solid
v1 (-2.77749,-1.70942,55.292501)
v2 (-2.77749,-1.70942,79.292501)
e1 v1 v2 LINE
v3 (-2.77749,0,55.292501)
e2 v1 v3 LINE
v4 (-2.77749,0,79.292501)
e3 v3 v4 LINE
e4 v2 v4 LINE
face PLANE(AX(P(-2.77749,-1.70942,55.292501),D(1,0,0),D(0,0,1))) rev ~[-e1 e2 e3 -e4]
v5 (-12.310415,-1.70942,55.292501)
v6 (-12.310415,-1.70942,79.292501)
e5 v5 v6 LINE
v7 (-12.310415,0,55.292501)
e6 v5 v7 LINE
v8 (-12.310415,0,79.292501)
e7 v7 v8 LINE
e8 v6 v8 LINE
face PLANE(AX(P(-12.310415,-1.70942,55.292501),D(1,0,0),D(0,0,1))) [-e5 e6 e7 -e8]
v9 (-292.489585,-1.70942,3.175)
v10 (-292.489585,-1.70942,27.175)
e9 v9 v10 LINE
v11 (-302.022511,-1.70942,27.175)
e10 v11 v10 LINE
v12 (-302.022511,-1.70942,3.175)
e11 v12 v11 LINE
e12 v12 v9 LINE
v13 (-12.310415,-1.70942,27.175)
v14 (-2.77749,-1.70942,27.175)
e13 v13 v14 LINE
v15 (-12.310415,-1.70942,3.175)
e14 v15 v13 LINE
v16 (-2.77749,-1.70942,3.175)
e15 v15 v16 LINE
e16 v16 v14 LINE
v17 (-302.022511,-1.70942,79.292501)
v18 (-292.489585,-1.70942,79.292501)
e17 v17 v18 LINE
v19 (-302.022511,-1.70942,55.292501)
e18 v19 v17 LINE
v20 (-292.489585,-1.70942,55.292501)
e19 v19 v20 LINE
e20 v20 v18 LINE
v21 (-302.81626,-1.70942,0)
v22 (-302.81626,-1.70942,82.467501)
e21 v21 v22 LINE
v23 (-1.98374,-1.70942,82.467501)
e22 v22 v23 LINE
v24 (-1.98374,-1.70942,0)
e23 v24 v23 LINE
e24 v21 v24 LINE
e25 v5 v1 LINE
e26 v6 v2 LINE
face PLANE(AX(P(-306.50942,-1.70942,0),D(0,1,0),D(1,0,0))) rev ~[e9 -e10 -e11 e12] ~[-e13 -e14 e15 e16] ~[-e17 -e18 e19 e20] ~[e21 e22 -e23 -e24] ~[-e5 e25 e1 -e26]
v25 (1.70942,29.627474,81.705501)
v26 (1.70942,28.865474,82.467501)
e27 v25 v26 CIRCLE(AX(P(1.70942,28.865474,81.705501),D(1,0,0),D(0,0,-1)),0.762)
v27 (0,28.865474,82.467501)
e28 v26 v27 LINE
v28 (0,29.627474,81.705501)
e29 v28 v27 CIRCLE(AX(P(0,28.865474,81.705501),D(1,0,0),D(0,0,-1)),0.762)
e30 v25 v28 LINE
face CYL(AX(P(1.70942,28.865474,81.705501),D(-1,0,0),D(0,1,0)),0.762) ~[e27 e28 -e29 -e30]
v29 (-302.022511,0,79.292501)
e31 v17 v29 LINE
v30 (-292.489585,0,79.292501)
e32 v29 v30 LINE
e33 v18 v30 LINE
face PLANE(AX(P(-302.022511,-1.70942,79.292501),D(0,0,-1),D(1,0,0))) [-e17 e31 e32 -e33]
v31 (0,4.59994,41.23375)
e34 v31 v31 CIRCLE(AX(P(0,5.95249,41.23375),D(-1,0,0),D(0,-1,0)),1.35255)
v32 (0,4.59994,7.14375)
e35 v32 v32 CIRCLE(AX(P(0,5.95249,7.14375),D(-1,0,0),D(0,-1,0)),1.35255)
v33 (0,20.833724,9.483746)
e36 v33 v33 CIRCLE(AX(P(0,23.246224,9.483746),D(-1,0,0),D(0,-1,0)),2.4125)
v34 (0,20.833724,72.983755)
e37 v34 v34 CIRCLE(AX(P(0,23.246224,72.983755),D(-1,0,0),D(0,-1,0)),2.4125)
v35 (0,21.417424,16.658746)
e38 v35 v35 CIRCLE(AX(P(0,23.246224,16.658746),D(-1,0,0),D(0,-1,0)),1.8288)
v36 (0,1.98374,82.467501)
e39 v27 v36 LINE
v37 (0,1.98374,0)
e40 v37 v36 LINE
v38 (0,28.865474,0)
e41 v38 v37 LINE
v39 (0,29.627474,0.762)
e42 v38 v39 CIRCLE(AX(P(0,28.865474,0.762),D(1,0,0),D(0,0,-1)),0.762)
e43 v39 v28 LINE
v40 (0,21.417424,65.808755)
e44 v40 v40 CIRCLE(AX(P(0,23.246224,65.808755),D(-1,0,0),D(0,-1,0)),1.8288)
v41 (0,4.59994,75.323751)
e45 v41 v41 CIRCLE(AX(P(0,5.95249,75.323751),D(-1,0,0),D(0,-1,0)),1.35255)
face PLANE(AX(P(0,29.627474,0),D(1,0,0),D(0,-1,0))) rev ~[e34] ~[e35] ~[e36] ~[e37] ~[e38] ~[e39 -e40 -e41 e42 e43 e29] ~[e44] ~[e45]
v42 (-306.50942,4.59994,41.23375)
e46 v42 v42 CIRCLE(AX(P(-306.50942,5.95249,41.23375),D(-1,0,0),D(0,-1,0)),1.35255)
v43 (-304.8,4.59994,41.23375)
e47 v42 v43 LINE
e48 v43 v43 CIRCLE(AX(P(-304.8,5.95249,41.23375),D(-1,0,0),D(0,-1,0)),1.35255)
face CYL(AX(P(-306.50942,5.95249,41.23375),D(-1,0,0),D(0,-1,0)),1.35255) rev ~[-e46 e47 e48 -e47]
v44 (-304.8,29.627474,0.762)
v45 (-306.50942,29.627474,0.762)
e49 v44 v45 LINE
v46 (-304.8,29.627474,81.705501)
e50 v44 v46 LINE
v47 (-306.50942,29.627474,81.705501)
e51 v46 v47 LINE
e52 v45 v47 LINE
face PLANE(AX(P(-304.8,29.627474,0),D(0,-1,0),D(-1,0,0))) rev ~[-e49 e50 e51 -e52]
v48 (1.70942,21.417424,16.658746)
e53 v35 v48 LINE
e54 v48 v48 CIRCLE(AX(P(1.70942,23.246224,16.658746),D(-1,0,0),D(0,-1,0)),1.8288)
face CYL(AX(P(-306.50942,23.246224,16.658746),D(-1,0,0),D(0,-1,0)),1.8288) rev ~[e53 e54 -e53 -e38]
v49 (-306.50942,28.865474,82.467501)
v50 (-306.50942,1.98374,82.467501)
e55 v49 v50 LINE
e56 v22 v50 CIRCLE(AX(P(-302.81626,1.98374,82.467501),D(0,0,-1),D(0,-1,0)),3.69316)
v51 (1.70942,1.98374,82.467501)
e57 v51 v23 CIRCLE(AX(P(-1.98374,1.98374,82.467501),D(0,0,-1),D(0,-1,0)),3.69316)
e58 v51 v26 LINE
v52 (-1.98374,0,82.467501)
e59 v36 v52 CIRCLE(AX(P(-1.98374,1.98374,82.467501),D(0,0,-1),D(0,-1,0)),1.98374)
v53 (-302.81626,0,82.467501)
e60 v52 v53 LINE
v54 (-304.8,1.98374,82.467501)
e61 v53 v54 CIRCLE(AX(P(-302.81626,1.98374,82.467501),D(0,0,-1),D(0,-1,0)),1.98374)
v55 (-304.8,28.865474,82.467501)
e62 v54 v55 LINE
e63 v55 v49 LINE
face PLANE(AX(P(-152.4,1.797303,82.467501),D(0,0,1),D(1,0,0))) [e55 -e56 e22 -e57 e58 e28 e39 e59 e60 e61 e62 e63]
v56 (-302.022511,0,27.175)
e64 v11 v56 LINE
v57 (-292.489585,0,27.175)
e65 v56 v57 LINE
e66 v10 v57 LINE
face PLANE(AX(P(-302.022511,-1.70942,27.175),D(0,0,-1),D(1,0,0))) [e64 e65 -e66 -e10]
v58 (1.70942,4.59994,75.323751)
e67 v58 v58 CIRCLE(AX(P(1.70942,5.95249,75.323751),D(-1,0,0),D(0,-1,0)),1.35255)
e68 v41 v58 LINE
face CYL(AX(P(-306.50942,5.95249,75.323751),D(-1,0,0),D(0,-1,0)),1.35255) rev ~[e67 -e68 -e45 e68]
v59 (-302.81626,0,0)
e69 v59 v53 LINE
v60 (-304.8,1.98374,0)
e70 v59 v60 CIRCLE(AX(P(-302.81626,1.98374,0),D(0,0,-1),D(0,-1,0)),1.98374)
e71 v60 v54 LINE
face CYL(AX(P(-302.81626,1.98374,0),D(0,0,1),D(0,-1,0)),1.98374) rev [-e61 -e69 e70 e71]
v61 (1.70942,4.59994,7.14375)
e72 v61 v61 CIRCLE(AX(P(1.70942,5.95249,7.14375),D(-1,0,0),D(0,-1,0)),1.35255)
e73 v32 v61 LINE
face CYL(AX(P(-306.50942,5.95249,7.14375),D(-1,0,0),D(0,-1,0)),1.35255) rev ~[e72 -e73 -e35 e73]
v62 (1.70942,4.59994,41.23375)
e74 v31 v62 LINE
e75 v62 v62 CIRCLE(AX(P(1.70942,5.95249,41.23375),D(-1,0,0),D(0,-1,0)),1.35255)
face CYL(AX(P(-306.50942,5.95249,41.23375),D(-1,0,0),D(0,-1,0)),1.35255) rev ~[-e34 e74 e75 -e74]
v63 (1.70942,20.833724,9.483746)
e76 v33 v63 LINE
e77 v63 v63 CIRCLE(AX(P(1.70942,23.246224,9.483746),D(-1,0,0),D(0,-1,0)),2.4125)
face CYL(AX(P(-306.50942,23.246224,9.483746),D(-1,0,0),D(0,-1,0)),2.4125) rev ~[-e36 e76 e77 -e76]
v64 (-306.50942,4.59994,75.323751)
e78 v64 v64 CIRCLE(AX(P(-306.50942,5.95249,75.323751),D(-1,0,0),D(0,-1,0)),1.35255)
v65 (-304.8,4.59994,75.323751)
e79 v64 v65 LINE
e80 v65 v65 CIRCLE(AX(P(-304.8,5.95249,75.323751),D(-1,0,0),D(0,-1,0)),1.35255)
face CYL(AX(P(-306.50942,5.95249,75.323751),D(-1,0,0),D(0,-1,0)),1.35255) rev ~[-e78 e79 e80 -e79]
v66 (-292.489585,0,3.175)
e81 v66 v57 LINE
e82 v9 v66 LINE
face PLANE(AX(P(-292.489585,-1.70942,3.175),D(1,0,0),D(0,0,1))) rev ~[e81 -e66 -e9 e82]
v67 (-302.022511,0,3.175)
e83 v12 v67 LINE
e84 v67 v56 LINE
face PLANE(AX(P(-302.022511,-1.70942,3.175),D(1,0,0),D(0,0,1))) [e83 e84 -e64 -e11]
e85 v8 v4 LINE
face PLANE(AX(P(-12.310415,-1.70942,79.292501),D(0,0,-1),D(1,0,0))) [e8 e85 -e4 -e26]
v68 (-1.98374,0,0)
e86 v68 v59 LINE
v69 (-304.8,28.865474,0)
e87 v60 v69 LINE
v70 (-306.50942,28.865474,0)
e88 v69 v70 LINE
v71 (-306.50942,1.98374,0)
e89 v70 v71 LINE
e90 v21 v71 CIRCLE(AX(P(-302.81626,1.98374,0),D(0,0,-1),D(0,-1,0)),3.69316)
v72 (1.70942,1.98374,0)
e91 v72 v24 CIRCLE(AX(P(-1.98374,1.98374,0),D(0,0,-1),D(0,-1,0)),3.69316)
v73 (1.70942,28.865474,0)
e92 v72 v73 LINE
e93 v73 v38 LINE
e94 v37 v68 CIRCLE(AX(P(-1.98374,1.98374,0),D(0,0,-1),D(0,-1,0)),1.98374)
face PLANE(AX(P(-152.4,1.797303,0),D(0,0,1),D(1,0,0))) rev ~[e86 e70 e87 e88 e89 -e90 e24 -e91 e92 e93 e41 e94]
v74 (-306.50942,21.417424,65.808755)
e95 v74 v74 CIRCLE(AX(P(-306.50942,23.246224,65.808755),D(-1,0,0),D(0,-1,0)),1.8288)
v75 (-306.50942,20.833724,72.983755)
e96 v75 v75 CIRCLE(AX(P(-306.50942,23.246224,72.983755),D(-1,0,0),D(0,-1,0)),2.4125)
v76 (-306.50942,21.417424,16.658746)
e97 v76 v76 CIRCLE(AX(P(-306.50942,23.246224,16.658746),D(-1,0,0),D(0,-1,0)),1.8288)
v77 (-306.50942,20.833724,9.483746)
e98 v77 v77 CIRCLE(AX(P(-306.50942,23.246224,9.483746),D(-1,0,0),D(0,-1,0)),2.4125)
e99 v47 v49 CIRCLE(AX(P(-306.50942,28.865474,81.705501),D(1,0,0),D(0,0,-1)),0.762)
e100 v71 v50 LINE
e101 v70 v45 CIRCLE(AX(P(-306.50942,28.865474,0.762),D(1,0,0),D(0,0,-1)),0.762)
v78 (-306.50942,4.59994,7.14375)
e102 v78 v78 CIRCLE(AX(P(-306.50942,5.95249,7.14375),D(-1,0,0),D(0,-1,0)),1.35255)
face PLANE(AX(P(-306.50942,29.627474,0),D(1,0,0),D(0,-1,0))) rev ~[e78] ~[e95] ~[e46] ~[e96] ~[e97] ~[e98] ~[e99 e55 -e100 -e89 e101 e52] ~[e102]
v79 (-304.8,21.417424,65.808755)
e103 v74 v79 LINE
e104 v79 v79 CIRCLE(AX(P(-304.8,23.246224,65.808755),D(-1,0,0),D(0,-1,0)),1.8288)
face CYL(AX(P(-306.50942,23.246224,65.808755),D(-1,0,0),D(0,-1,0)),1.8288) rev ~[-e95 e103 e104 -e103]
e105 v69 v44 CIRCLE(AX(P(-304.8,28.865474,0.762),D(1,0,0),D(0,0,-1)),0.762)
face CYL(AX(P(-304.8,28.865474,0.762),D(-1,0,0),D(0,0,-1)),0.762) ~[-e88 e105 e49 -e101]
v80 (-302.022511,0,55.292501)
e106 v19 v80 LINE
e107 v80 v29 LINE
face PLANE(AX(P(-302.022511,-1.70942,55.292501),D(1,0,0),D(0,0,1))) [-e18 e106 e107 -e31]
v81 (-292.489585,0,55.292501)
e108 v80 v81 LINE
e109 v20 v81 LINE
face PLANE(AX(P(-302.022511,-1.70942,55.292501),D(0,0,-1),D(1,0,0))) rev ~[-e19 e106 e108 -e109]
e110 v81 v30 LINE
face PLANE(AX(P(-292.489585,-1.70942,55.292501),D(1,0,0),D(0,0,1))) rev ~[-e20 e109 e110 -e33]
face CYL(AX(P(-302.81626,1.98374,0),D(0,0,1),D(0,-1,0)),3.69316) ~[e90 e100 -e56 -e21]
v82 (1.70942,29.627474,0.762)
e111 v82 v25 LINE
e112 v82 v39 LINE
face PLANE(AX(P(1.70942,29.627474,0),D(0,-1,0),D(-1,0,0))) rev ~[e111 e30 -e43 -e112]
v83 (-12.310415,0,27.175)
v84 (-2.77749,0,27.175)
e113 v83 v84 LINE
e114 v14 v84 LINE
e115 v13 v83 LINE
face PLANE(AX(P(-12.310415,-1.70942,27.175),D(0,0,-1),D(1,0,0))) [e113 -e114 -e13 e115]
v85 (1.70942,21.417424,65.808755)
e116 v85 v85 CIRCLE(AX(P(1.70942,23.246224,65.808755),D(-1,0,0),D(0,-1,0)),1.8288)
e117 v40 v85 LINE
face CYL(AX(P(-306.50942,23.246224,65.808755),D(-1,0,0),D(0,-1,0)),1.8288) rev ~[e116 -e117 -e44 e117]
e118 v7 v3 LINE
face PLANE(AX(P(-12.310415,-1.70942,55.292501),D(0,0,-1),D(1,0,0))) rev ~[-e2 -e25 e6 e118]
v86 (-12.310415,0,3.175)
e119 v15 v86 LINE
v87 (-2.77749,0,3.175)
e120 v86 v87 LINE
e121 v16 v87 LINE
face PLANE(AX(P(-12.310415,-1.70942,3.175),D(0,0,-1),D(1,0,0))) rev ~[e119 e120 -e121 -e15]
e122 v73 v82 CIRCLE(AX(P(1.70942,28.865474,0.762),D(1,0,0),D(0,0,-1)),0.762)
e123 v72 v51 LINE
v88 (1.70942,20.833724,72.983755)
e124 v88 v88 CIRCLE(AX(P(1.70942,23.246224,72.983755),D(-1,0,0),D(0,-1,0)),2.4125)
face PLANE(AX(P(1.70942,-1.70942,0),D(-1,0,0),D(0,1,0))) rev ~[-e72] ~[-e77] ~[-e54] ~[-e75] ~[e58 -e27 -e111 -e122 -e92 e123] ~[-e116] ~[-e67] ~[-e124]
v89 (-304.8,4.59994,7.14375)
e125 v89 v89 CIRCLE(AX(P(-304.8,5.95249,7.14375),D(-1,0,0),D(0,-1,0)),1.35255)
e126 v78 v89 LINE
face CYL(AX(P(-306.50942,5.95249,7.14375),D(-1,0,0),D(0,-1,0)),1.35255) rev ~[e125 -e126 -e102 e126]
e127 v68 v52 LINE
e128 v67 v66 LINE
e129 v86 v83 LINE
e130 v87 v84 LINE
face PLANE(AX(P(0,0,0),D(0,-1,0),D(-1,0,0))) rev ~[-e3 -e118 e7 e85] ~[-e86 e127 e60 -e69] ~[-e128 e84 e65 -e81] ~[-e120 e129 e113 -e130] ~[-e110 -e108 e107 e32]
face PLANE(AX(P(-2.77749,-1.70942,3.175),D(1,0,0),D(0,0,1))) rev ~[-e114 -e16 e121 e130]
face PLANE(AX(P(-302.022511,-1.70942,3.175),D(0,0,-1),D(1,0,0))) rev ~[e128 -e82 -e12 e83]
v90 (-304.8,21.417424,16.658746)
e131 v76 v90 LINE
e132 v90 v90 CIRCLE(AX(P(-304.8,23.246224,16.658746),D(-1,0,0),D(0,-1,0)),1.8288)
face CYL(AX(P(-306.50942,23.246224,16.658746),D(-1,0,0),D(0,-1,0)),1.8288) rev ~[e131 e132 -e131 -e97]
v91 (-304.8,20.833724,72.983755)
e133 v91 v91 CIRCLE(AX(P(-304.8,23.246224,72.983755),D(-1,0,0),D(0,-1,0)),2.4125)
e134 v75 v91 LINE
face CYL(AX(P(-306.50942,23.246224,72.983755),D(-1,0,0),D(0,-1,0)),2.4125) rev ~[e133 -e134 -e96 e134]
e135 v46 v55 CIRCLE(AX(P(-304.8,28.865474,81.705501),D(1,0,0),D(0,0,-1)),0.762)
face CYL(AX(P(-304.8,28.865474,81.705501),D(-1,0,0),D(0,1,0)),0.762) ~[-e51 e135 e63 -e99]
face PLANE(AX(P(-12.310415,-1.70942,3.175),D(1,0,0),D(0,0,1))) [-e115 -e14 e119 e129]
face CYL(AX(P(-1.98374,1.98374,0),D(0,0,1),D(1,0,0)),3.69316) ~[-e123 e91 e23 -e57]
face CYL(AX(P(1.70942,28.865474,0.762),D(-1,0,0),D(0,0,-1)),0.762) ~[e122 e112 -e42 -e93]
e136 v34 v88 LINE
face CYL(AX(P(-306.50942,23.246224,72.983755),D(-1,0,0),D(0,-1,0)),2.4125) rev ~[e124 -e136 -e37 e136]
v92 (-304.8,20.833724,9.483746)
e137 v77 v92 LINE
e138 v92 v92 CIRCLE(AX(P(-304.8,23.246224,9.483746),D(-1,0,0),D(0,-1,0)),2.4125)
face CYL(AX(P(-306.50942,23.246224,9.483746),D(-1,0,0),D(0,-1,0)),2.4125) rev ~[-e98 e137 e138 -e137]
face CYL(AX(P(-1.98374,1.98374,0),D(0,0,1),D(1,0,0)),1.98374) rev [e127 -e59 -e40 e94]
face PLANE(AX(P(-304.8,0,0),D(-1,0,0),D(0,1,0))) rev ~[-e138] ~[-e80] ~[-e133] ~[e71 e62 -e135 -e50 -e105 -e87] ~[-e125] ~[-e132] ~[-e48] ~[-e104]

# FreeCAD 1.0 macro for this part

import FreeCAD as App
import Part
import Sketcher
from FreeCAD import Vector
Q = App.Units.Quantity


def edges_at(feature, points):
    """Names of the edges that pass closest to the given points."""
    edges = feature.Shape.Edges
    near = lambda p: min(range(len(edges)), key=lambda i: edges[i].distToShape(Part.Vertex(*p))[0])
    return sorted({f"Edge{near(p) + 1}" for p in points})


def add_polygon(sketch, points):
    """Adds a closed chain of lines whose ends are joined by coincident constraints."""
    first, n = sketch.GeometryCount, len(points)
    for a, b in zip(points, points[1:] + points[:1]):
        sketch.addGeometry(Part.LineSegment(App.Vector(*a, 0), App.Vector(*b, 0)), False)
    for i in range(n):
        sketch.addConstraint(Sketcher.Constraint("Coincident", first + i, 2, first + (i + 1) % n, 1))

doc = App.newDocument("Part")
body = doc.addObject("PartDesign::Body", "Body")

sketch1 = doc.addObject("Sketcher::SketchObject", "Sketch")
body.addObject(sketch1)
sketch1.AttachmentSupport = (doc.XY_Plane, [""])
sketch1.MapMode = "FlatFace"
add_polygon(sketch1, [(0, 29.6), (0, 0), (-304.8, 0), (-304.8, 29.6), (-306.5, 29.6), (-306.5, -1.7), (1.7, -1.7), (1.7, 29.6)])
sketch1.addConstraint(Sketcher.Constraint("Vertical", 0))
sketch1.addConstraint(Sketcher.Constraint("Horizontal", 1))
sketch1.addConstraint(Sketcher.Constraint("Vertical", 2))
sketch1.addConstraint(Sketcher.Constraint("Horizontal", 3))
sketch1.addConstraint(Sketcher.Constraint("Vertical", 4))
sketch1.addConstraint(Sketcher.Constraint("Horizontal", 5))
sketch1.addConstraint(Sketcher.Constraint("Vertical", 6))
sketch1.addConstraint(Sketcher.Constraint("Horizontal", 7))
sketch1.addConstraint(Sketcher.Constraint("Coincident", 0, 2, -1, 1))
sketch1.addConstraint(Sketcher.Constraint("Horizontal", 3, 2, 6, 2))
sketch1.addConstraint(Sketcher.Constraint("Equal", 3, 7))
sketch1.addConstraint(Sketcher.Constraint("DistanceX", 1, 2, 1, 1, Q("12 in")))
sketch1.addConstraint(Sketcher.Constraint("DistanceX", 3, 2, 3, 1, Q("0.0673 in")))
sketch1.addConstraint(Sketcher.Constraint("DistanceY", 4, 2, -1, 1, Q("0.0673 in")))
sketch1.addConstraint(Sketcher.Constraint("DistanceY", 0, 2, 0, 1, 29.627474))
pad1 = doc.addObject("PartDesign::Pad", "Pad")
body.addObject(pad1)
pad1.Profile = sketch1
pad1.Length = 82.467501
doc.recompute()

fillet = doc.addObject("PartDesign::Fillet", "Fillet")
body.addObject(fillet)
fillet.Base = (pad1, edges_at(pad1, [(0, 0, 41.234), (-304.8, 0, 41.234)]))
fillet.Radius = Q("0.0781 in")
doc.recompute()

fillet2 = doc.addObject("PartDesign::Fillet", "Fillet001")
body.addObject(fillet2)
fillet2.Base = (fillet, edges_at(fillet, [(1.709, -1.709, 41.234), (-306.509, -1.709, 41.234)]))
fillet2.Radius = Q("0.1454 in")

sketch2 = doc.addObject("Sketcher::SketchObject", "Sketch001")
body.addObject(sketch2)
sketch2.AttachmentSupport = (doc.YZ_Plane, [""])
sketch2.MapMode = "FlatFace"
sketch2.AttachmentOffset = App.Placement(Vector(0, 0, -12.0673 * 25.4), App.Rotation())
sketch2.addGeometry(Part.Circle(Vector(23.2, 9.5, 0), Vector(0, 0, 1), 2.4), False)
sketch2.addGeometry(Part.Circle(Vector(23.2, 73, 0), Vector(0, 0, 1), 2.4), False)
sketch2.addGeometry(Part.Circle(Vector(23.2, 65.8, 0), Vector(0, 0, 1), 1.8), False)
sketch2.addGeometry(Part.Circle(Vector(23.2, 16.7, 0), Vector(0, 0, 1), 1.8), False)
sketch2.addGeometry(Part.Circle(Vector(6, 7.1, 0), Vector(0, 0, 1), 1.4), False)
sketch2.addGeometry(Part.Circle(Vector(6, 75.3, 0), Vector(0, 0, 1), 1.4), False)
sketch2.addGeometry(Part.Circle(Vector(6, 41.2, 0), Vector(0, 0, 1), 1.4), False)
sketch2.addConstraint(Sketcher.Constraint("Equal", 0, 1))
sketch2.addConstraint(Sketcher.Constraint("Equal", 2, 3))
sketch2.addConstraint(Sketcher.Constraint("Equal", 4, 5))
sketch2.addConstraint(Sketcher.Constraint("Equal", 5, 6))
sketch2.addConstraint(Sketcher.Constraint("Vertical", 0, 3, 1, 3))
sketch2.addConstraint(Sketcher.Constraint("Vertical", 1, 3, 2, 3))
sketch2.addConstraint(Sketcher.Constraint("Vertical", 2, 3, 3, 3))
sketch2.addConstraint(Sketcher.Constraint("Vertical", 4, 3, 5, 3))
sketch2.addConstraint(Sketcher.Constraint("Vertical", 5, 3, 6, 3))
sketch2.addConstraint(Sketcher.Constraint("Diameter", 2, Q("0.144 in")))
sketch2.addConstraint(Sketcher.Constraint("Diameter", 4, Q("0.1065 in")))
sketch2.addConstraint(Sketcher.Constraint("Diameter", 0, 4.825))
sketch2.addConstraint(Sketcher.Constraint("DistanceY", 0, 3, 6, 3, Q("1.2500002 in")))
sketch2.addConstraint(Sketcher.Constraint("DistanceY", -1, 1, 4, 3, Q("0.28125 in")))
sketch2.addConstraint(Sketcher.Constraint("DistanceY", 2, 3, 1, 3, 7.175))
sketch2.addConstraint(Sketcher.Constraint("DistanceY", 0, 3, 3, 3, 7.175))
sketch2.addConstraint(Sketcher.Constraint("DistanceY", 4, 3, 5, 3, 68.180001))
sketch2.addConstraint(Sketcher.Constraint("DistanceY", 4, 3, 6, 3, 34.09))
sketch2.addConstraint(Sketcher.Constraint("DistanceX", -1, 1, 4, 3, 5.95249))
sketch2.addConstraint(Sketcher.Constraint("DistanceY", 0, 3, 1, 3, 63.500009))
sketch2.addConstraint(Sketcher.Constraint("DistanceX", -1, 1, 0, 3, 23.246224))
pocket1 = doc.addObject("PartDesign::Pocket", "Pocket")
body.addObject(pocket1)
pocket1.Profile = sketch2
pocket1.Type = "ThroughAll"
pocket1.Reversed = True

sketch3 = doc.addObject("Sketcher::SketchObject", "Sketch002")
body.addObject(sketch3)
sketch3.AttachmentSupport = (doc.XZ_Plane, [""])
sketch3.MapMode = "FlatFace"
sketch3.AttachmentOffset = App.Placement(Vector(0, 0, 0.0673 * 25.4), App.Rotation())
add_polygon(sketch3, [(-12, 27), (-12, 3), (-3, 3), (-3, 27)])
add_polygon(sketch3, [(-12, 79), (-12, 55), (-3, 55), (-3, 79)])
add_polygon(sketch3, [(-302, 79), (-302, 55), (-292, 55), (-292, 79)])
add_polygon(sketch3, [(-302, 27), (-302, 3), (-292, 3), (-292, 27)])
sketch3.addConstraint(Sketcher.Constraint("Vertical", 0))
sketch3.addConstraint(Sketcher.Constraint("Horizontal", 1))
sketch3.addConstraint(Sketcher.Constraint("Vertical", 2))
sketch3.addConstraint(Sketcher.Constraint("Horizontal", 3))
sketch3.addConstraint(Sketcher.Constraint("Vertical", 4))
sketch3.addConstraint(Sketcher.Constraint("Horizontal", 5))
sketch3.addConstraint(Sketcher.Constraint("Vertical", 6))
sketch3.addConstraint(Sketcher.Constraint("Horizontal", 7))
sketch3.addConstraint(Sketcher.Constraint("Vertical", 8))
sketch3.addConstraint(Sketcher.Constraint("Horizontal", 9))
sketch3.addConstraint(Sketcher.Constraint("Vertical", 10))
sketch3.addConstraint(Sketcher.Constraint("Horizontal", 11))
sketch3.addConstraint(Sketcher.Constraint("Vertical", 12))
sketch3.addConstraint(Sketcher.Constraint("Horizontal", 13))
sketch3.addConstraint(Sketcher.Constraint("Vertical", 14))
sketch3.addConstraint(Sketcher.Constraint("Horizontal", 15))
sketch3.addConstraint(Sketcher.Constraint("Horizontal", 5, 2, 8, 2))
sketch3.addConstraint(Sketcher.Constraint("Horizontal", 7, 2, 10, 2))
sketch3.addConstraint(Sketcher.Constraint("Horizontal", 1, 2, 12, 2))
sketch3.addConstraint(Sketcher.Constraint("Horizontal", 3, 2, 14, 2))
sketch3.addConstraint(Sketcher.Constraint("Vertical", 3, 2, 4, 2))
sketch3.addConstraint(Sketcher.Constraint("Vertical", 2, 2, 5, 2))
sketch3.addConstraint(Sketcher.Constraint("Vertical", 11, 2, 12, 2))
sketch3.addConstraint(Sketcher.Constraint("Vertical", 10, 2, 13, 2))
sketch3.addConstraint(Sketcher.Constraint("Equal", 7, 9))
sketch3.addConstraint(Sketcher.Constraint("Equal", 2, 4))
sketch3.addConstraint(Sketcher.Constraint("DistanceY", -1, 1, 0, 2, Q("0.125 in")))
sketch3.addConstraint(Sketcher.Constraint("DistanceY", 0, 2, 0, 1, 24.0))
sketch3.addConstraint(Sketcher.Constraint("DistanceX", 8, 2, 5, 2, Q("11.7813 in")))
sketch3.addConstraint(Sketcher.Constraint("DistanceY", -1, 1, 4, 2, 55.292501))
sketch3.addConstraint(Sketcher.Constraint("DistanceX", 1, 1, 1, 2, 9.532925))
sketch3.addConstraint(Sketcher.Constraint("DistanceX", 1, 2, -1, 1, 2.77749))
pocket2 = doc.addObject("PartDesign::Pocket", "Pocket001")
body.addObject(pocket2)
pocket2.Profile = sketch3
pocket2.Type = "ThroughAll"
doc.recompute()

fillet3 = doc.addObject("PartDesign::Fillet", "Fillet002")
body.addObject(fillet3)
fillet3.Base = (pocket2, edges_at(pocket2, [
    (0.855, 29.627, 82.468),
    (0.855, 29.627, 0),
    (-305.655, 29.627, 0),
    (-305.655, 29.627, 82.468),
]))
fillet3.Radius = Q("0.03 in")

doc.recompute()
